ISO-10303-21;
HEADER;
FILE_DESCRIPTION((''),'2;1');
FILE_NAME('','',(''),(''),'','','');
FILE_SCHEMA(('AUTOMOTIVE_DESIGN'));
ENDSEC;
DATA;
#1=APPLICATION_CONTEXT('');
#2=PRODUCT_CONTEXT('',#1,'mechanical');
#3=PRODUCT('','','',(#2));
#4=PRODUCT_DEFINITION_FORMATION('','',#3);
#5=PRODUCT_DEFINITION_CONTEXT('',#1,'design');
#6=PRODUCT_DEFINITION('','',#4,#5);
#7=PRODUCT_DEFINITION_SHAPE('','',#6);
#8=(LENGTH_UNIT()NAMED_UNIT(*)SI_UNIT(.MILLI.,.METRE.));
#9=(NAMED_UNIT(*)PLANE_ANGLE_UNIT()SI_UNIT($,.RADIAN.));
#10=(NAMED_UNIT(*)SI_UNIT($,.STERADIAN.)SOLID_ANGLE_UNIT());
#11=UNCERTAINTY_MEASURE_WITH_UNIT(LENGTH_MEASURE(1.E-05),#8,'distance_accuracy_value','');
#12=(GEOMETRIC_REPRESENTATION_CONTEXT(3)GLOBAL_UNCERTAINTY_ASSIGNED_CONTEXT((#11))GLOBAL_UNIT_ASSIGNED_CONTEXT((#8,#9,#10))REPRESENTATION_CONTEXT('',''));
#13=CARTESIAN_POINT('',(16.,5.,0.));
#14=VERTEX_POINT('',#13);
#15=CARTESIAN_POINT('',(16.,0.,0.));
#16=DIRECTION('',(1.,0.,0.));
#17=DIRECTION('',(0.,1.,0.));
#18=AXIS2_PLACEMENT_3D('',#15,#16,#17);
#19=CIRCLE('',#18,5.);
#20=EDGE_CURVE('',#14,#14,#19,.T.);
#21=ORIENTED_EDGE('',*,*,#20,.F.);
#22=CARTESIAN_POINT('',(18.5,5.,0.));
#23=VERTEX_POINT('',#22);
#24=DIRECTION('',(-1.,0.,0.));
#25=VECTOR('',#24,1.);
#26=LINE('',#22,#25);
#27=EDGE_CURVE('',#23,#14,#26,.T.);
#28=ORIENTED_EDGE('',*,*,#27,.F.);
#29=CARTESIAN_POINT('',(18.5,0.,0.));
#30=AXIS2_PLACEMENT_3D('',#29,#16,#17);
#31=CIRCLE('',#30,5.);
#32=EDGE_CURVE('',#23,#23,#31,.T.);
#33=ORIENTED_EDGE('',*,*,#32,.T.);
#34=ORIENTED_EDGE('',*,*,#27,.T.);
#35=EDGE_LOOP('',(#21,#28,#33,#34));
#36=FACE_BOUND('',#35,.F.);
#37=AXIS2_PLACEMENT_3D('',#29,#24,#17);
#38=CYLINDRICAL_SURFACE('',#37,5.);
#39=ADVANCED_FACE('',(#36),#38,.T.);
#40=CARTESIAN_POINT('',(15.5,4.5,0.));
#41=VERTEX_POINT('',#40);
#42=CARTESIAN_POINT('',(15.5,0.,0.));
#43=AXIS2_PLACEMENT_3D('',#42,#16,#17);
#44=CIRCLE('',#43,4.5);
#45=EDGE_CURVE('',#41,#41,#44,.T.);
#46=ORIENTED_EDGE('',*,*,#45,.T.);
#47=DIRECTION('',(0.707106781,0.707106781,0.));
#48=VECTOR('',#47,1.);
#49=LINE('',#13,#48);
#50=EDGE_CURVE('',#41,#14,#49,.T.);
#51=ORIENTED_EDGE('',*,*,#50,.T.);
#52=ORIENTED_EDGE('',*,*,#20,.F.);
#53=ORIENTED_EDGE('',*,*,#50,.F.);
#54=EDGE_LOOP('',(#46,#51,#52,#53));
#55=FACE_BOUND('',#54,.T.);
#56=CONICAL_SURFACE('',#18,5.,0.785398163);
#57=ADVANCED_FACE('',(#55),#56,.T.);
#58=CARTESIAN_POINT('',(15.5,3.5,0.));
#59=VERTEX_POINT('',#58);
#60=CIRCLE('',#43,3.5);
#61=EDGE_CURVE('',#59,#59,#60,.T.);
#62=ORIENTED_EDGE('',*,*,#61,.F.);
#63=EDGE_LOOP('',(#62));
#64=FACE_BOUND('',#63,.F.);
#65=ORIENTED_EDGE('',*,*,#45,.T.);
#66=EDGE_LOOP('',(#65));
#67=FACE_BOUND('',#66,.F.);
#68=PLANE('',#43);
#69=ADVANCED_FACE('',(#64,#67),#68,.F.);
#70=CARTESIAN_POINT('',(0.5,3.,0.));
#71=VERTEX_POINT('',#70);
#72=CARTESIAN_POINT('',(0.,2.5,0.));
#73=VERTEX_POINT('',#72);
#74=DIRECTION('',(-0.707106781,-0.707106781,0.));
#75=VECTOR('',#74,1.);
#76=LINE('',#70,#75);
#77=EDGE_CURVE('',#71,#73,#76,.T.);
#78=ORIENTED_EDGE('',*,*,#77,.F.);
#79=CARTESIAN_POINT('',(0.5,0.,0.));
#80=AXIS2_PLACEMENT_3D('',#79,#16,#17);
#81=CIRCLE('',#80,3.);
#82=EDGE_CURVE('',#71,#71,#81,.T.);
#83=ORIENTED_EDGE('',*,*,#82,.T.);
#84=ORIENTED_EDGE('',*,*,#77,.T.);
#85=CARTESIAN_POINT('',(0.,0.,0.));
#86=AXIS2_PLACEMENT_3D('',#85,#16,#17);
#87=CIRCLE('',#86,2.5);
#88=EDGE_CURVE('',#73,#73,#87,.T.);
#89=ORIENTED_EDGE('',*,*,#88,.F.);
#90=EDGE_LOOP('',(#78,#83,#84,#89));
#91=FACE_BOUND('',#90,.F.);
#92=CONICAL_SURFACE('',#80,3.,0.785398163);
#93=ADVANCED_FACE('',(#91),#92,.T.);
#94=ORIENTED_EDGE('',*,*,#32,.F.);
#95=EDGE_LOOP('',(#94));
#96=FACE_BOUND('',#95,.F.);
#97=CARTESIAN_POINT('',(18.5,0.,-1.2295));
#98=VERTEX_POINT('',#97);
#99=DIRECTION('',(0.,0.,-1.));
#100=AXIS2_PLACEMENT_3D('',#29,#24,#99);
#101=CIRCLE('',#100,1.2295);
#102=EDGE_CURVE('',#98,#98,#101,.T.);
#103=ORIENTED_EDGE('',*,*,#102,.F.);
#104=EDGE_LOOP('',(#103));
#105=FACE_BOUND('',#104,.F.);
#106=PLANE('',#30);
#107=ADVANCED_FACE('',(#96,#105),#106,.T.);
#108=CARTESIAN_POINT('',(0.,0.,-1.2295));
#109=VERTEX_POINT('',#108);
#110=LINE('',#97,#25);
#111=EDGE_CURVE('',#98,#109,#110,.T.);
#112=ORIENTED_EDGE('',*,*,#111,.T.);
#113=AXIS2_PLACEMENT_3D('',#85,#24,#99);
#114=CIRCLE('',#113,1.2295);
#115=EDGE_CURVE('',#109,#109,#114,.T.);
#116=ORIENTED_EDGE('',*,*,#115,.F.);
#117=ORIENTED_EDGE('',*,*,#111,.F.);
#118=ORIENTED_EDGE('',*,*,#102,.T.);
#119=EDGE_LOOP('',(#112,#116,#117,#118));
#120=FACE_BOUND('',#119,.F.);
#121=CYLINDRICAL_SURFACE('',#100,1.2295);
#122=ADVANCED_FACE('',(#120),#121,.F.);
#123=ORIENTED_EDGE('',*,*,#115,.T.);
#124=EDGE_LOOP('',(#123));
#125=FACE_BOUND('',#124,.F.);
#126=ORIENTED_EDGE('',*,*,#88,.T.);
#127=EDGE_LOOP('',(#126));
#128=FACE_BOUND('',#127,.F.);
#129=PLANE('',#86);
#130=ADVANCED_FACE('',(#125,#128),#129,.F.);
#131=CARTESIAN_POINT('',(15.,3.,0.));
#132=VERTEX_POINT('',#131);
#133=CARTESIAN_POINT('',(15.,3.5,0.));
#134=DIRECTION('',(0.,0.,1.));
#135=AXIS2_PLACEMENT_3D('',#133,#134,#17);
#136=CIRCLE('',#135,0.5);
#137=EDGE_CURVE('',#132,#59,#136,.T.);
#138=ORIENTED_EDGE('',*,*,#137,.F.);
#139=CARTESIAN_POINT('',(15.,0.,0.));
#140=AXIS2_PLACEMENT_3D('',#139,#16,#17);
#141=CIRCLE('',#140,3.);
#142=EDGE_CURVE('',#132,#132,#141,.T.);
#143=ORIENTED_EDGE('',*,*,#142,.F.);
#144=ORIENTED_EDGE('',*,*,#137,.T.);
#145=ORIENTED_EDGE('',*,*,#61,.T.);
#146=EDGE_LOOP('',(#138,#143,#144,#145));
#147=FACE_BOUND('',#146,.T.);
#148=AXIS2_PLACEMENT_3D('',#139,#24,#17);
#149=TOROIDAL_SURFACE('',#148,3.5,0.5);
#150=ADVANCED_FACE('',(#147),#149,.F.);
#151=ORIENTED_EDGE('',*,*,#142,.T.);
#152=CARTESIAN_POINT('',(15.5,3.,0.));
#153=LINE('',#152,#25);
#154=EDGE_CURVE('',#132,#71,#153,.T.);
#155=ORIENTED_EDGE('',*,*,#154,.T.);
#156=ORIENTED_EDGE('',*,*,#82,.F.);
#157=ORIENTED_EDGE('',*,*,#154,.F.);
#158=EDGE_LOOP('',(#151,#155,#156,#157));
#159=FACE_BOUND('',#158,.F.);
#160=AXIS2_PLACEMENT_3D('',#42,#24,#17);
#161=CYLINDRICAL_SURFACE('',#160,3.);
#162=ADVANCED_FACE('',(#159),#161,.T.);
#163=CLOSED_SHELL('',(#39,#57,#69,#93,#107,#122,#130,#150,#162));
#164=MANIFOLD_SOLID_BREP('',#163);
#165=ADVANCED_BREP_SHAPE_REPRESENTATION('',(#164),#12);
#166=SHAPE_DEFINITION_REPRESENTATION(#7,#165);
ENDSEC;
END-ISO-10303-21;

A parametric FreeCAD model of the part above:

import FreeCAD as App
import Part
import Sketcher
Q = App.Units.Quantity


def edges_at(feature, points):
    """Names of the edges that pass closest to the given points."""
    edges = feature.Shape.Edges
    near = lambda p: min(range(len(edges)), key=lambda i: edges[i].distToShape(Part.Vertex(*p))[0])
    return sorted({f"Edge{near(p) + 1}" for p in points})


def add_polygon(sketch, points):
    """Adds a closed chain of lines whose ends are joined by coincident constraints."""
    first, n = sketch.GeometryCount, len(points)
    for a, b in zip(points, points[1:] + points[:1]):
        sketch.addGeometry(Part.LineSegment(App.Vector(*a, 0), App.Vector(*b, 0)), False)
    for i in range(n):
        sketch.addConstraint(Sketcher.Constraint("Coincident", first + i, 2, first + (i + 1) % n, 1))

doc = App.newDocument("Part")
params = doc.addObject("Spreadsheet::Sheet", "Params")
for row, (alias, value) in enumerate([
    ("sketch1_width", "3 mm"),
    ("sketch1_height", "5 mm"),
    ("sketch1_width2", "15.5 mm"),
    ("revolution_angle", "360 deg"),
    ("fillet_radius", "0.5 mm"),
    ("chamfer_size", "0.5 mm"),
    ("hole_diameter", "2.459 mm"),
], start=1):
    params.set(f"A{row}", alias)
    params.set(f"B{row}", "=" + value)
    params.setAlias(f"B{row}", alias)

body = doc.addObject("PartDesign::Body", "Body")

sketch1 = body.newObject("Sketcher::SketchObject", "Sketch")
sketch1.AttachmentSupport = (doc.getObject("XY_Plane"), [""])
sketch1.MapMode = "FlatFace"
add_polygon(sketch1, [(0, 3), (0, 0), (18.5, 0), (18.5, 5), (15.5, 5), (15.5, 3)])
sketch1.addConstraint(Sketcher.Constraint("Vertical", 0))
sketch1.addConstraint(Sketcher.Constraint("Horizontal", 1))
sketch1.addConstraint(Sketcher.Constraint("Vertical", 2))
sketch1.addConstraint(Sketcher.Constraint("Horizontal", 3))
sketch1.addConstraint(Sketcher.Constraint("Vertical", 4))
sketch1.addConstraint(Sketcher.Constraint("Horizontal", 5))
sketch1.addConstraint(Sketcher.Constraint("Coincident", 0, 2, -1, 1))
sketch1.addConstraint(Sketcher.Constraint("Equal", 3, 0))
sketch1.addConstraint(Sketcher.Constraint("DistanceX", 3, 2, 3, 1, Q("3 mm")))
sketch1.addConstraint(Sketcher.Constraint("DistanceY", 2, 1, 2, 2, Q("5 mm")))
sketch1.addConstraint(Sketcher.Constraint("DistanceX", 5, 2, 5, 1, Q("15.5 mm")))
sketch1.setExpression("Constraints[14]", "Params.sketch1_width")
sketch1.setExpression("Constraints[15]", "Params.sketch1_height")
sketch1.setExpression("Constraints[16]", "Params.sketch1_width2")
revolution = body.newObject("PartDesign::Revolution", "Revolution")
revolution.Profile = sketch1
revolution.ReferenceAxis = (sketch1, ["H_Axis"])
revolution.setExpression("Angle", "Params.revolution_angle")
doc.recompute()

fillet = body.newObject("PartDesign::Fillet", "Fillet")
fillet.Base = (revolution, edges_at(revolution, [(15.5, -3, 0)]))
fillet.setExpression("Radius", "Params.fillet_radius")
doc.recompute()

chamfer = body.newObject("PartDesign::Chamfer", "Chamfer")
chamfer.Base = (fillet, edges_at(fillet, [(0, -3, 0), (15.5, -5, 0)]))
chamfer.setExpression("Size", "Params.chamfer_size")

sketch2 = body.newObject("Sketcher::SketchObject", "Sketch001")
sketch2.AttachmentSupport = (doc.getObject("YZ_Plane"), [""])
sketch2.MapMode = "FlatFace"
sketch2.AttachmentOffset = App.Placement(App.Vector(0, 0, 18.5), App.Rotation())
sketch2.addGeometry(Part.Circle(App.Vector(0, 0, 0), App.Vector(0, 0, 1), 1.2295), False)
sketch2.addConstraint(Sketcher.Constraint("Coincident", 0, 3, -1, 1))
sketch2.addConstraint(Sketcher.Constraint("Diameter", 0, Q("2.459 mm")))
doc.recompute()
hole = body.newObject("PartDesign::Hole", "Hole")
hole.Profile = sketch2
hole.ThreadType = "None"
hole.setExpression("Diameter", "Params.hole_diameter")
hole.DepthType = "ThroughAll"

doc.recompute()
